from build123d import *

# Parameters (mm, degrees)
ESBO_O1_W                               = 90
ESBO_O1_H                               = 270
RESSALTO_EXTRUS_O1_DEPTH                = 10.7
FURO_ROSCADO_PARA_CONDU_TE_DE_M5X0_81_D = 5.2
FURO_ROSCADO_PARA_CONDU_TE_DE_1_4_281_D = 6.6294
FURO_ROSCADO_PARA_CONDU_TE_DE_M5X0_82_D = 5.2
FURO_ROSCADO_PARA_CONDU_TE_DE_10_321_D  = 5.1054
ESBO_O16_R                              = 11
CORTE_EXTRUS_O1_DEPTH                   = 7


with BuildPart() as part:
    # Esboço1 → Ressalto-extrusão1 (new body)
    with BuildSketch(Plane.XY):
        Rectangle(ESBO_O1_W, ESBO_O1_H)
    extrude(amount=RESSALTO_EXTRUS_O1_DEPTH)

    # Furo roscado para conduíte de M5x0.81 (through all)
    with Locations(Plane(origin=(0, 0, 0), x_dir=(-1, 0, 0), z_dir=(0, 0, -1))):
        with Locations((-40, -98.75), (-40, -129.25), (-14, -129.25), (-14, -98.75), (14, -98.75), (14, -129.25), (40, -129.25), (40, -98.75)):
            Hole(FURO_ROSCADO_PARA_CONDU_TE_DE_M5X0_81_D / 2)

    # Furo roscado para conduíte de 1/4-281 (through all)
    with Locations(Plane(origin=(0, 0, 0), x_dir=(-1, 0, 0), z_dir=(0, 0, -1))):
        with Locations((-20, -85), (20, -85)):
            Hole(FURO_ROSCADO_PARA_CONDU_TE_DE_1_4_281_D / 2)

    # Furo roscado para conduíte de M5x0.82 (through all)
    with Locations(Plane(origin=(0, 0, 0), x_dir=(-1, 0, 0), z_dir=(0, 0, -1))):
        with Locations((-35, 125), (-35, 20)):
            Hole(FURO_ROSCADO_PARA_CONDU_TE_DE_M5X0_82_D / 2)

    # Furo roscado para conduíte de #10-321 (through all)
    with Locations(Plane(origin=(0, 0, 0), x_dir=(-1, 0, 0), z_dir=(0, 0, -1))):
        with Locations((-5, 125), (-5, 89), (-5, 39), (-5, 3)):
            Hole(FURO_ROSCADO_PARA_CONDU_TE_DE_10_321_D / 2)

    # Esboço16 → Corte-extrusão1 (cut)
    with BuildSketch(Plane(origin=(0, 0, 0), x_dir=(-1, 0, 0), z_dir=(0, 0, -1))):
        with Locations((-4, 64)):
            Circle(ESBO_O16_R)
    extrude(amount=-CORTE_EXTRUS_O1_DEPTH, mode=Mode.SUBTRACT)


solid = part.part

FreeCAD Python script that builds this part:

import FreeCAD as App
import Part
import Sketcher


def add_polygon(sketch, points):
    """Adds a closed chain of lines whose ends are joined by coincident constraints."""
    first, n = sketch.GeometryCount, len(points)
    for a, b in zip(points, points[1:] + points[:1]):
        sketch.addGeometry(Part.LineSegment(App.Vector(*a, 0), App.Vector(*b, 0)), False)
    for i in range(n):
        sketch.addConstraint(Sketcher.Constraint("Coincident", first + i, 2, first + (i + 1) % n, 1))

doc = App.newDocument("Part")
body = doc.addObject("PartDesign::Body", "Body")

# Sketch on XY plane
sketch1 = body.newObject("Sketcher::SketchObject", "Sketch")
sketch1.AttachmentSupport = (doc.getObject("XY_Plane"), [""])
sketch1.MapMode = "FlatFace"
add_polygon(sketch1, [(-45, 135), (-45, -135), (45, -135), (45, 135)])  # lines 0-3
sketch1.addConstraint([
    Sketcher.Constraint("Vertical", 0),
    Sketcher.Constraint("Horizontal", 1),
    Sketcher.Constraint("Vertical", 2),
    Sketcher.Constraint("Horizontal", 3),
    Sketcher.Constraint("Symmetric", 0, 2, 2, 2, -1, 1),
    Sketcher.Constraint("DistanceX", 1, 1, 1, 2, 90.0),
    Sketcher.Constraint("DistanceY", 0, 2, 0, 1, 270.0),
])
pad1 = body.newObject("PartDesign::Pad", "Pad")
pad1.Profile = sketch1
pad1.Length = 10.7

# Sketch on XY plane
sketch2 = body.newObject("Sketcher::SketchObject", "Sketch001")
sketch2.AttachmentSupport = (doc.getObject("XY_Plane"), [""])
sketch2.MapMode = "FlatFace"
sketch2.addGeometry([
    Part.Circle(App.Vector(40, -98.8, 0), App.Vector(0, 0, 1), 2.6),  # 0
    Part.Circle(App.Vector(40, -129.2, 0), App.Vector(0, 0, 1), 2.6),  # 1
    Part.Circle(App.Vector(14, -129.2, 0), App.Vector(0, 0, 1), 2.6),  # 2
    Part.Circle(App.Vector(14, -98.8, 0), App.Vector(0, 0, 1), 2.6),  # 3
    Part.Circle(App.Vector(-14, -98.8, 0), App.Vector(0, 0, 1), 2.6),  # 4
    Part.Circle(App.Vector(-14, -129.2, 0), App.Vector(0, 0, 1), 2.6),  # 5
    Part.Circle(App.Vector(-40, -129.2, 0), App.Vector(0, 0, 1), 2.6),  # 6
    Part.Circle(App.Vector(-40, -98.8, 0), App.Vector(0, 0, 1), 2.6),  # 7
], False)
sketch2.addConstraint([
    Sketcher.Constraint("Equal", 0, 1),
    Sketcher.Constraint("Equal", 1, 2),
    Sketcher.Constraint("Equal", 2, 3),
    Sketcher.Constraint("Equal", 3, 4),
    Sketcher.Constraint("Equal", 4, 5),
    Sketcher.Constraint("Equal", 5, 6),
    Sketcher.Constraint("Equal", 6, 7),
    Sketcher.Constraint("Symmetric", 3, 3, 4, 3, -2),
    Sketcher.Constraint("Symmetric", 2, 3, 5, 3, -2),
    Sketcher.Constraint("Symmetric", 1, 3, 6, 3, -2),
    Sketcher.Constraint("Symmetric", 0, 3, 7, 3, -2),
    Sketcher.Constraint("Horizontal", 1, 3, 2, 3),
    Sketcher.Constraint("Horizontal", 0, 3, 3, 3),
    Sketcher.Constraint("Vertical", 0, 3, 1, 3),
    Sketcher.Constraint("Vertical", 2, 3, 3, 3),
    Sketcher.Constraint("Diameter", 0, 5.2),
    Sketcher.Constraint("DistanceX", -1, 1, 0, 3, 40.0),
    Sketcher.Constraint("DistanceX", -1, 1, 2, 3, 14.0),
    Sketcher.Constraint("DistanceY", 1, 3, 0, 3, 30.5),
    Sketcher.Constraint("DistanceY", 0, 3, -1, 1, 98.75),
])
doc.recompute()
hole = body.newObject("PartDesign::Hole", "Hole")
hole.Profile = sketch2
hole.ThreadType = "None"
hole.Diameter = 5.2
hole.DepthType = "ThroughAll"
hole.Reversed = True

# Sketch on XY plane
sketch3 = body.newObject("Sketcher::SketchObject", "Sketch002")
sketch3.AttachmentSupport = (doc.getObject("XY_Plane"), [""])
sketch3.MapMode = "FlatFace"
sketch3.addGeometry([
    Part.Circle(App.Vector(20, -85, 0), App.Vector(0, 0, 1), 3.3),
    Part.Circle(App.Vector(-20, -85, 0), App.Vector(0, 0, 1), 3.3),
], False)
sketch3.addConstraint([
    Sketcher.Constraint("Equal", 0, 1),
    Sketcher.Constraint("Symmetric", 0, 3, 1, 3, -2),
    Sketcher.Constraint("DistanceX", -1, 1, 0, 3, 20.0),
    Sketcher.Constraint("DistanceY", 0, 3, -1, 1, 85.0),
    Sketcher.Constraint("Diameter", 0, 6.6294),
])
doc.recompute()
hole2 = body.newObject("PartDesign::Hole", "Hole001")
hole2.Profile = sketch3
hole2.ThreadType = "None"
hole2.Diameter = 6.6294
hole2.DepthType = "ThroughAll"
hole2.Reversed = True

# Sketch on XY plane
sketch4 = body.newObject("Sketcher::SketchObject", "Sketch003")
sketch4.AttachmentSupport = (doc.getObject("XY_Plane"), [""])
sketch4.MapMode = "FlatFace"
sketch4.addGeometry([
    Part.Circle(App.Vector(35, 125, 0), App.Vector(0, 0, 1), 2.6),
    Part.Circle(App.Vector(35, 20, 0), App.Vector(0, 0, 1), 2.6),
], False)
sketch4.addConstraint([
    Sketcher.Constraint("Equal", 0, 1),
    Sketcher.Constraint("Vertical", 0, 3, 1, 3),
    Sketcher.Constraint("Diameter", 0, 5.2),
    Sketcher.Constraint("DistanceX", -1, 1, 0, 3, 35.0),
    Sketcher.Constraint("DistanceY", -1, 1, 0, 3, 125.0),
    Sketcher.Constraint("DistanceY", -1, 1, 1, 3, 20.0),
])
doc.recompute()
hole3 = body.newObject("PartDesign::Hole", "Hole002")
hole3.Profile = sketch4
hole3.ThreadType = "None"
hole3.Diameter = 5.2
hole3.DepthType = "ThroughAll"
hole3.Reversed = True

# Sketch on XY plane
sketch5 = body.newObject("Sketcher::SketchObject", "Sketch004")
sketch5.AttachmentSupport = (doc.getObject("XY_Plane"), [""])
sketch5.MapMode = "FlatFace"
sketch5.addGeometry([
    Part.Circle(App.Vector(5, 125, 0), App.Vector(0, 0, 1), 2.6),
    Part.Circle(App.Vector(5, 89, 0), App.Vector(0, 0, 1), 2.6),
    Part.Circle(App.Vector(5, 39, 0), App.Vector(0, 0, 1), 2.6),
    Part.Circle(App.Vector(5, 3, 0), App.Vector(0, 0, 1), 2.6),
], False)
sketch5.addConstraint([
    Sketcher.Constraint("Equal", 0, 1),
    Sketcher.Constraint("Equal", 1, 2),
    Sketcher.Constraint("Equal", 2, 3),
    Sketcher.Constraint("Vertical", 0, 3, 1, 3),
    Sketcher.Constraint("Vertical", 1, 3, 2, 3),
    Sketcher.Constraint("Vertical", 2, 3, 3, 3),
    Sketcher.Constraint("DistanceX", -1, 1, 0, 3, 5.0),
    Sketcher.Constraint("DistanceY", -1, 1, 0, 3, 125.0),
    Sketcher.Constraint("DistanceY", -1, 1, 1, 3, 89.0),
    Sketcher.Constraint("DistanceY", -1, 1, 2, 3, 39.0),
    Sketcher.Constraint("DistanceY", -1, 1, 3, 3, 3.0),
    Sketcher.Constraint("Diameter", 0, 5.1054),
])
doc.recompute()
hole4 = body.newObject("PartDesign::Hole", "Hole003")
hole4.Profile = sketch5
hole4.ThreadType = "None"
hole4.Diameter = 5.1054
hole4.DepthType = "ThroughAll"
hole4.Reversed = True

# Sketch on XY plane
sketch6 = body.newObject("Sketcher::SketchObject", "Sketch005")
sketch6.AttachmentSupport = (doc.getObject("XY_Plane"), [""])
sketch6.MapMode = "FlatFace"
sketch6.addGeometry(Part.Circle(App.Vector(4, 64, 0), App.Vector(0, 0, 1), 11), False)
sketch6.addConstraint([
    Sketcher.Constraint("Diameter", 0, 22.0),
    Sketcher.Constraint("DistanceX", -1, 1, 0, 3, 4.0),
    Sketcher.Constraint("DistanceY", -1, 1, 0, 3, 64.0),
])
pocket1 = body.newObject("PartDesign::Pocket", "Pocket")
pocket1.Profile = sketch6
pocket1.Length = 7
pocket1.Reversed = True

doc.recompute()
